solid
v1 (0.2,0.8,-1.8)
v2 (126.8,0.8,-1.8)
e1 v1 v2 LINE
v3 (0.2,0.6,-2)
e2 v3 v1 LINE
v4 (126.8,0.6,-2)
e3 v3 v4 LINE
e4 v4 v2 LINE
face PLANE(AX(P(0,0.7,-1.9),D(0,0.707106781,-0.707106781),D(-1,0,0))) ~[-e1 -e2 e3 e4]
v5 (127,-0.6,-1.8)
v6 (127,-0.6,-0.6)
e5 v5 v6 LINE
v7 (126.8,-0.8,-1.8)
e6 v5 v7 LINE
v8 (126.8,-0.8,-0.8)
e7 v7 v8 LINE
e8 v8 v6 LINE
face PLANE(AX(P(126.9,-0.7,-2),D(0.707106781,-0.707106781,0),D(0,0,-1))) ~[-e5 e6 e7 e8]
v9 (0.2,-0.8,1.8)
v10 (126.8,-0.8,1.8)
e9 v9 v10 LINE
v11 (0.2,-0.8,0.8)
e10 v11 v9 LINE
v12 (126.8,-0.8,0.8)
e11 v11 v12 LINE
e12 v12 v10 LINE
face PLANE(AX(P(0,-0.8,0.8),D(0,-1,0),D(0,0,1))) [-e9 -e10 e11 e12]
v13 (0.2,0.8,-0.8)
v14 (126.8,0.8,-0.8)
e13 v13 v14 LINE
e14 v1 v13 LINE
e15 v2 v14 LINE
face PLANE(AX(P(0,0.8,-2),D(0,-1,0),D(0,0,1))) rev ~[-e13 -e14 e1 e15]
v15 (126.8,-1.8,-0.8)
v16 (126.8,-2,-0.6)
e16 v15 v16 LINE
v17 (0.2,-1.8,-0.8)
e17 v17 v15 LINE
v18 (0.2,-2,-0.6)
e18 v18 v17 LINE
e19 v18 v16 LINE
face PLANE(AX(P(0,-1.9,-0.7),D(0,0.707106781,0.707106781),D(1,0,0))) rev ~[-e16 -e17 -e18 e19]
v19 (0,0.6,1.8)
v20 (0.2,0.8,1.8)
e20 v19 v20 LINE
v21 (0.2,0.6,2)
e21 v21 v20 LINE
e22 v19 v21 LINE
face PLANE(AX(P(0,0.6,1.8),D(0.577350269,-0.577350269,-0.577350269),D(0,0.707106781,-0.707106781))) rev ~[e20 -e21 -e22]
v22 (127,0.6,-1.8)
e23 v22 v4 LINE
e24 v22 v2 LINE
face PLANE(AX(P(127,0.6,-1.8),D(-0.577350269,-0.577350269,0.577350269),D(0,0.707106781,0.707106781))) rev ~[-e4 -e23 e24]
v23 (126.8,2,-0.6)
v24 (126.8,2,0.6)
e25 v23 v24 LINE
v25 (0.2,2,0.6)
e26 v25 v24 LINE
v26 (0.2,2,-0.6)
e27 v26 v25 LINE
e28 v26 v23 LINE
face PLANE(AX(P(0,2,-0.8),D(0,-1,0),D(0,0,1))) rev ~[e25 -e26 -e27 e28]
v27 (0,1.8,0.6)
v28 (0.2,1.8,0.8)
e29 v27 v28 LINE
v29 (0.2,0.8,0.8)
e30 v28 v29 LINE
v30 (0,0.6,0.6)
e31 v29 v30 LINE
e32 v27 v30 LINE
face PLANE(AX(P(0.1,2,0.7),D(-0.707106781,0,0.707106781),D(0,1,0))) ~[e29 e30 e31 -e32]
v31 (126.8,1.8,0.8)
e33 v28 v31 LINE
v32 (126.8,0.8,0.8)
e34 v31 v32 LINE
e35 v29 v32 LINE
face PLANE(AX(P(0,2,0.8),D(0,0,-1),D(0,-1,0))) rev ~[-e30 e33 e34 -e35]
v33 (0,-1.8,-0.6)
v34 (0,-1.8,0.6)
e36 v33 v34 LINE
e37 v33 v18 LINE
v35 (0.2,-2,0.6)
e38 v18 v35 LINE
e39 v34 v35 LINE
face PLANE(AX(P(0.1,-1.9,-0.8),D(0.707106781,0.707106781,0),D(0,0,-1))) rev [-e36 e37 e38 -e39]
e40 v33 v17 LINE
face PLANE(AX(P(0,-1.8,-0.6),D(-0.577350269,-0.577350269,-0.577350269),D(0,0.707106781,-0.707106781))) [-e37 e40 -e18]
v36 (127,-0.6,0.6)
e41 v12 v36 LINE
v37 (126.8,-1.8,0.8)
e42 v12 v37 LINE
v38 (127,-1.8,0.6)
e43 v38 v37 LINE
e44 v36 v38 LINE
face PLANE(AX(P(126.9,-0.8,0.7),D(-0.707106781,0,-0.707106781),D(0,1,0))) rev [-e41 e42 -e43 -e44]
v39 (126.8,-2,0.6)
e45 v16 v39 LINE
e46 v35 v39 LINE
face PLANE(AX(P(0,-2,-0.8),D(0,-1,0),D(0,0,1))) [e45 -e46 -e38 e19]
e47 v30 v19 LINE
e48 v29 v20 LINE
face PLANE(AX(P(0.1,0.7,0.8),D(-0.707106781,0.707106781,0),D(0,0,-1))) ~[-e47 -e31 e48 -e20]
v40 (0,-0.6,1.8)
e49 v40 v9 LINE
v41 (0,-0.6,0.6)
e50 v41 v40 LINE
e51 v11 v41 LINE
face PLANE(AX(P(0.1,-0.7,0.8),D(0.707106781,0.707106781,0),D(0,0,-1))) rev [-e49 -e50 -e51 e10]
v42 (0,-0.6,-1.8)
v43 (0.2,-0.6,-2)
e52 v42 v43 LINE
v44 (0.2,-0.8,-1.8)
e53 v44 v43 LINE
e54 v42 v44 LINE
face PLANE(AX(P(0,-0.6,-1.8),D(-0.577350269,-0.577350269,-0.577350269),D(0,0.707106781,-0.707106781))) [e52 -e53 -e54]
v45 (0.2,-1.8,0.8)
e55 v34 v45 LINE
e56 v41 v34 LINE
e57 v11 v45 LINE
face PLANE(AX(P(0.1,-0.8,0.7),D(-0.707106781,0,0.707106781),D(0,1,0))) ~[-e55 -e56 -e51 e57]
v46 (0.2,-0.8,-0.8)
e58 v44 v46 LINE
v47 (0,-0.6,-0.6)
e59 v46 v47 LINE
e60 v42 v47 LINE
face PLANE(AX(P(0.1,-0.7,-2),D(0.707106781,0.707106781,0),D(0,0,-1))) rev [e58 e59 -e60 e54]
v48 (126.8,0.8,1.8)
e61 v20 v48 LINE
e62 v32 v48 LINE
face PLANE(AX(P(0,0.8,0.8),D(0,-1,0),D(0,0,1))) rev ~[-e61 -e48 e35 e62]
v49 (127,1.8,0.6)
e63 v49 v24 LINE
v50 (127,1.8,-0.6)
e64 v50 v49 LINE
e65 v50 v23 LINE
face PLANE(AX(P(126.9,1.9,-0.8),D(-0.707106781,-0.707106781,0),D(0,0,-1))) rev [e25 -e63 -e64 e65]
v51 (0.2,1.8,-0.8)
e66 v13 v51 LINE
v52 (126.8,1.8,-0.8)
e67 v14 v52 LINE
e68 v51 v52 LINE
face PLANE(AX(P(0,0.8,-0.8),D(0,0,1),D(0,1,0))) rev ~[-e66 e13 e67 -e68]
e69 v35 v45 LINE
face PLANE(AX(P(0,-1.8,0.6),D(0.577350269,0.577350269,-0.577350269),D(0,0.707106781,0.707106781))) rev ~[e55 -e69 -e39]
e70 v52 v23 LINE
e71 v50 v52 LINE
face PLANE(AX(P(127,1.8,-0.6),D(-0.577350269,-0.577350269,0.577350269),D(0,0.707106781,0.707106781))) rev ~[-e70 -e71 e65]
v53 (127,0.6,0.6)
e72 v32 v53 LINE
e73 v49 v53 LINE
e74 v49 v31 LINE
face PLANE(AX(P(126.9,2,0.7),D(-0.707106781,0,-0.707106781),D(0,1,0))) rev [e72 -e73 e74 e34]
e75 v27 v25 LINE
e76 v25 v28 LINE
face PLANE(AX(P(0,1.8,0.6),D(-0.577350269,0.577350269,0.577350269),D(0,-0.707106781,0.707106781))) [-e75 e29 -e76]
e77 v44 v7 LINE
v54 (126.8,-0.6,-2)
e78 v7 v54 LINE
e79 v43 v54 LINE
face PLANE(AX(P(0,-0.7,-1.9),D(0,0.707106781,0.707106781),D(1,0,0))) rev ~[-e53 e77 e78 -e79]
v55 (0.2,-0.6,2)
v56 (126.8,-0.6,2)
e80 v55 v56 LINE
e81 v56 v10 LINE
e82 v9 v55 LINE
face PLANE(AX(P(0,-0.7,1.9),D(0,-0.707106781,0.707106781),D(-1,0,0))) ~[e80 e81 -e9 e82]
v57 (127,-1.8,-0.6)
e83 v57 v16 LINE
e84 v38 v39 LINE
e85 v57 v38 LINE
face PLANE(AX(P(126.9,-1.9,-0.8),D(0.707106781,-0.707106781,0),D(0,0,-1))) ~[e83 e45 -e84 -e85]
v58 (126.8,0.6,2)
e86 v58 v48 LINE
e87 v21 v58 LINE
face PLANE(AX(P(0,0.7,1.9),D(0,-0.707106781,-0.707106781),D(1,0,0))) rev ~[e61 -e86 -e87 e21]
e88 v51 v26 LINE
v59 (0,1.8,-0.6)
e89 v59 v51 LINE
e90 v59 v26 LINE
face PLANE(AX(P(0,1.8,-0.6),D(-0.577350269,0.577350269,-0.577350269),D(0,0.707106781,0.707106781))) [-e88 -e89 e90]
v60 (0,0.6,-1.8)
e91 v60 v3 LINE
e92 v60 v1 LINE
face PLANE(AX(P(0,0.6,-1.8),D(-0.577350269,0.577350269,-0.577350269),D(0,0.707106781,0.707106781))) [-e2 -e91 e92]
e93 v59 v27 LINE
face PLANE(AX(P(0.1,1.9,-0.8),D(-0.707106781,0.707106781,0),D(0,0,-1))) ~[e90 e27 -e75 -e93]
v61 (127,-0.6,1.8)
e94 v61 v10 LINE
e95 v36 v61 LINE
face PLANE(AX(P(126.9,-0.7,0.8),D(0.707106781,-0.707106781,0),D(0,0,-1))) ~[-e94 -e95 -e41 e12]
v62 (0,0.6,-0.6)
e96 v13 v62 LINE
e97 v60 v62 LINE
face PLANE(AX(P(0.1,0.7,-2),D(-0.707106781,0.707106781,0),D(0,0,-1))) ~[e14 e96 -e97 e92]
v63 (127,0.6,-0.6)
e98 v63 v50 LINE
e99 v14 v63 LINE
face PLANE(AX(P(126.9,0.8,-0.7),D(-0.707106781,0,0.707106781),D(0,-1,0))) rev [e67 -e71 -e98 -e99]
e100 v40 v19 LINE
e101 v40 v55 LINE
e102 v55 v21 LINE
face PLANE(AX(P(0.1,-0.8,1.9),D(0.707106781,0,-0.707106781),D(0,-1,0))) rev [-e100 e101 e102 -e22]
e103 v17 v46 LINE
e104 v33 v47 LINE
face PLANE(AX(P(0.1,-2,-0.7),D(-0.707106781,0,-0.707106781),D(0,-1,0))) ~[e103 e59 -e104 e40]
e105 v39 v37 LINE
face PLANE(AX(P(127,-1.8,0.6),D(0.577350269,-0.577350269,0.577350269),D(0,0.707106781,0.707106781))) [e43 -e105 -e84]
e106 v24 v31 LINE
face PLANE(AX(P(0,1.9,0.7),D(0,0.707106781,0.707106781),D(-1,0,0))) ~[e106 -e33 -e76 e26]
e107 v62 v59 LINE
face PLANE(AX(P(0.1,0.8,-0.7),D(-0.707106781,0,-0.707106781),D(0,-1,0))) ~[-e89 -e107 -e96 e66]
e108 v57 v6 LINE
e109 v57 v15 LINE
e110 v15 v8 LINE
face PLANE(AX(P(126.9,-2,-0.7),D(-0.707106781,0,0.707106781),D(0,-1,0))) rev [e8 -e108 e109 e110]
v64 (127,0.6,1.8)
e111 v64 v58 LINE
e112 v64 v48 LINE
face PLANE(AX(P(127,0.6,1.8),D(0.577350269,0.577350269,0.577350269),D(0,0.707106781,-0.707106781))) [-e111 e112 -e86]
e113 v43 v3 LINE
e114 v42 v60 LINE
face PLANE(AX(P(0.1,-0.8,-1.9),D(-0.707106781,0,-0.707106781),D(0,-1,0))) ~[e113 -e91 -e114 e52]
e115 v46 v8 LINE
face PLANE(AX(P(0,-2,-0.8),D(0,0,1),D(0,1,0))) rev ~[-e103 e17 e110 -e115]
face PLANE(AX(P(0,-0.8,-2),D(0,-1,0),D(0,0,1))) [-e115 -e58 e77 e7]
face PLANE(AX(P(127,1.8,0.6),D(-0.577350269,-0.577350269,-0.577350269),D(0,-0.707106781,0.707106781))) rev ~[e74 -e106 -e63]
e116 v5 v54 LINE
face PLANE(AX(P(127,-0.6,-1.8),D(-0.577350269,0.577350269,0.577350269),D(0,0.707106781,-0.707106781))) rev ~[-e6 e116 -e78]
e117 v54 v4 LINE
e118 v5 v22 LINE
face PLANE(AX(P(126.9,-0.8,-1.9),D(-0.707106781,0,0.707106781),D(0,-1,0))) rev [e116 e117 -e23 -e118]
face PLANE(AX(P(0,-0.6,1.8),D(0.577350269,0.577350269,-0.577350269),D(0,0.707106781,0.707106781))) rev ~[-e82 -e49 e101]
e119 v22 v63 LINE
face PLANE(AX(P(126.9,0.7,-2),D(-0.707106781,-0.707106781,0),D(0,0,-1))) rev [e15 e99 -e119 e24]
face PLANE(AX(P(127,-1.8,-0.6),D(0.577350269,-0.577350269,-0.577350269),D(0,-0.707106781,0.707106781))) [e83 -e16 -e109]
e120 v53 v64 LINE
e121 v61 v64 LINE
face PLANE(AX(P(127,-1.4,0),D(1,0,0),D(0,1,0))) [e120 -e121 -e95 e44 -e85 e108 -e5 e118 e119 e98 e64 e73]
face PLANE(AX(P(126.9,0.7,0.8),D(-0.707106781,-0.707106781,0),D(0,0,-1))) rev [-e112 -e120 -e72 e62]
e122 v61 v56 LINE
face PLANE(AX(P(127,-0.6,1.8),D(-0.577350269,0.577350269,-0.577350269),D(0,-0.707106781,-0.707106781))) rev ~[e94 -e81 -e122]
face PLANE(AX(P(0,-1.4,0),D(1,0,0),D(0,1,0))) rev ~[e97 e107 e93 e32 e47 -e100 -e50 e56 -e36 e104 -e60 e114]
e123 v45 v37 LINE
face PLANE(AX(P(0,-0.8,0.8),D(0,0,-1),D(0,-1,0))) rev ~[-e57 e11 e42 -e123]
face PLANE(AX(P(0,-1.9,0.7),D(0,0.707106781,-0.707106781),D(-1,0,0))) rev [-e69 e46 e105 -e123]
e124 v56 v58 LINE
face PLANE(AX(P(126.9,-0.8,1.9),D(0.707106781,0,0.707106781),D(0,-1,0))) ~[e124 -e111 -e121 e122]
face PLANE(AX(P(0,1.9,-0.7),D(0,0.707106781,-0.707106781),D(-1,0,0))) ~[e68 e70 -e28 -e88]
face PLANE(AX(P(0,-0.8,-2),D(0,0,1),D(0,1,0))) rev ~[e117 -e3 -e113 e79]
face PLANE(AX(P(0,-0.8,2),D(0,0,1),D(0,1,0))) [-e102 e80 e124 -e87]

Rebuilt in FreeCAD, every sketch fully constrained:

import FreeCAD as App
import Part
import Sketcher
from FreeCAD import Vector


def edges_at(feature, points):
    """Names of the edges that pass closest to the given points."""
    edges = feature.Shape.Edges
    near = lambda p: min(range(len(edges)), key=lambda i: edges[i].distToShape(Part.Vertex(*p))[0])
    return sorted({f"Edge{near(p) + 1}" for p in points})


def add_polygon(sketch, points):
    """Adds a closed chain of lines whose ends are joined by coincident constraints."""
    first, n = sketch.GeometryCount, len(points)
    for a, b in zip(points, points[1:] + points[:1]):
        sketch.addGeometry(Part.LineSegment(App.Vector(*a, 0), App.Vector(*b, 0)), False)
    for i in range(n):
        sketch.addConstraint(Sketcher.Constraint("Coincident", first + i, 2, first + (i + 1) % n, 1))

doc = App.newDocument("Part")
body = doc.addObject("PartDesign::Body", "Body")

# Sketch on YZ plane
sketch1 = body.newObject("Sketcher::SketchObject", "Sketch")
sketch1.AttachmentSupport = (doc.getObject("YZ_Plane"), [""])
sketch1.MapMode = "FlatFace"
add_polygon(sketch1, [(-2, 0.8), (-2, -0.8), (-0.8, -0.8), (-0.8, -2), (0.8, -2), (0.8, -0.8), (2, -0.8), (2, 0.8), (0.8, 0.8), (0.8, 2), (-0.8, 2), (-0.8, 0.8)])  # lines 0-11
sketch1.addConstraint(Sketcher.Constraint("Vertical", 0))
sketch1.addConstraint(Sketcher.Constraint("Horizontal", 1))
sketch1.addConstraint(Sketcher.Constraint("Vertical", 2))
sketch1.addConstraint(Sketcher.Constraint("Horizontal", 3))
sketch1.addConstraint(Sketcher.Constraint("Vertical", 4))
sketch1.addConstraint(Sketcher.Constraint("Horizontal", 5))
sketch1.addConstraint(Sketcher.Constraint("Vertical", 6))
sketch1.addConstraint(Sketcher.Constraint("Horizontal", 7))
sketch1.addConstraint(Sketcher.Constraint("Vertical", 8))
sketch1.addConstraint(Sketcher.Constraint("Horizontal", 9))
sketch1.addConstraint(Sketcher.Constraint("Vertical", 10))
sketch1.addConstraint(Sketcher.Constraint("Horizontal", 11))
sketch1.addConstraint(Sketcher.Constraint("Symmetric", 0, 2, 6, 2, -1, 1))
sketch1.addConstraint(Sketcher.Constraint("Symmetric", 2, 2, 8, 2, -1, 1))
sketch1.addConstraint(Sketcher.Constraint("Symmetric", 4, 2, 10, 2, -1, 1))
sketch1.addConstraint(Sketcher.Constraint("Symmetric", 1, 2, 4, 2, -2))
sketch1.addConstraint(Sketcher.Constraint("Equal", 9, 0))
sketch1.addConstraint(Sketcher.Constraint("Equal", 11, 2))
sketch1.addConstraint(Sketcher.Constraint("DistanceX", 1, 1, 1, 2, 1.2))
sketch1.addConstraint(Sketcher.Constraint("DistanceX", 3, 1, 3, 2, 1.6))
pad1 = body.newObject("PartDesign::Pad", "Pad")
pad1.Profile = sketch1
pad1.Length = 127
doc.recompute()

chamfer = body.newObject("PartDesign::Chamfer", "Chamfer")
chamfer.Base = (pad1, edges_at(pad1, [
    (63.5, -2, -0.8),
    (63.5, -2, 0.8),
    (63.5, -0.8, 2),
    (63.5, -0.8, -2),
    (63.5, 0.8, -2),
    (63.5, 2, -0.8),
    (63.5, 2, 0.8),
    (63.5, 0.8, 2),
    (127, -1.4, -0.8),
    (127, -0.8, -1.4),
    (127, 0, -2),
    (127, 0.8, -1.4),
    (127, 1.4, -0.8),
    (127, 2, 0),
    (127, 1.4, 0.8),
    (127, 0, 2),
    (127, -0.8, 1.4),
    (127, 0.8, 1.4),
    (127, -2, 0),
    (0, -2, 0),
    (0, -1.4, 0.8),
    (0, -0.8, 1.4),
    (0, 0, 2),
    (0, -0.8, -1.4),
    (0, 0, -2),
    (0, 0.8, -1.4),
    (0, 1.4, -0.8),
    (0, 2, 0),
    (0, 1.4, 0.8),
    (0, 0.8, 1.4),
    (127, -1.4, 0.8),
    (0, -1.4, -0.8),
]))
chamfer.Size = 0.2

doc.recompute()
